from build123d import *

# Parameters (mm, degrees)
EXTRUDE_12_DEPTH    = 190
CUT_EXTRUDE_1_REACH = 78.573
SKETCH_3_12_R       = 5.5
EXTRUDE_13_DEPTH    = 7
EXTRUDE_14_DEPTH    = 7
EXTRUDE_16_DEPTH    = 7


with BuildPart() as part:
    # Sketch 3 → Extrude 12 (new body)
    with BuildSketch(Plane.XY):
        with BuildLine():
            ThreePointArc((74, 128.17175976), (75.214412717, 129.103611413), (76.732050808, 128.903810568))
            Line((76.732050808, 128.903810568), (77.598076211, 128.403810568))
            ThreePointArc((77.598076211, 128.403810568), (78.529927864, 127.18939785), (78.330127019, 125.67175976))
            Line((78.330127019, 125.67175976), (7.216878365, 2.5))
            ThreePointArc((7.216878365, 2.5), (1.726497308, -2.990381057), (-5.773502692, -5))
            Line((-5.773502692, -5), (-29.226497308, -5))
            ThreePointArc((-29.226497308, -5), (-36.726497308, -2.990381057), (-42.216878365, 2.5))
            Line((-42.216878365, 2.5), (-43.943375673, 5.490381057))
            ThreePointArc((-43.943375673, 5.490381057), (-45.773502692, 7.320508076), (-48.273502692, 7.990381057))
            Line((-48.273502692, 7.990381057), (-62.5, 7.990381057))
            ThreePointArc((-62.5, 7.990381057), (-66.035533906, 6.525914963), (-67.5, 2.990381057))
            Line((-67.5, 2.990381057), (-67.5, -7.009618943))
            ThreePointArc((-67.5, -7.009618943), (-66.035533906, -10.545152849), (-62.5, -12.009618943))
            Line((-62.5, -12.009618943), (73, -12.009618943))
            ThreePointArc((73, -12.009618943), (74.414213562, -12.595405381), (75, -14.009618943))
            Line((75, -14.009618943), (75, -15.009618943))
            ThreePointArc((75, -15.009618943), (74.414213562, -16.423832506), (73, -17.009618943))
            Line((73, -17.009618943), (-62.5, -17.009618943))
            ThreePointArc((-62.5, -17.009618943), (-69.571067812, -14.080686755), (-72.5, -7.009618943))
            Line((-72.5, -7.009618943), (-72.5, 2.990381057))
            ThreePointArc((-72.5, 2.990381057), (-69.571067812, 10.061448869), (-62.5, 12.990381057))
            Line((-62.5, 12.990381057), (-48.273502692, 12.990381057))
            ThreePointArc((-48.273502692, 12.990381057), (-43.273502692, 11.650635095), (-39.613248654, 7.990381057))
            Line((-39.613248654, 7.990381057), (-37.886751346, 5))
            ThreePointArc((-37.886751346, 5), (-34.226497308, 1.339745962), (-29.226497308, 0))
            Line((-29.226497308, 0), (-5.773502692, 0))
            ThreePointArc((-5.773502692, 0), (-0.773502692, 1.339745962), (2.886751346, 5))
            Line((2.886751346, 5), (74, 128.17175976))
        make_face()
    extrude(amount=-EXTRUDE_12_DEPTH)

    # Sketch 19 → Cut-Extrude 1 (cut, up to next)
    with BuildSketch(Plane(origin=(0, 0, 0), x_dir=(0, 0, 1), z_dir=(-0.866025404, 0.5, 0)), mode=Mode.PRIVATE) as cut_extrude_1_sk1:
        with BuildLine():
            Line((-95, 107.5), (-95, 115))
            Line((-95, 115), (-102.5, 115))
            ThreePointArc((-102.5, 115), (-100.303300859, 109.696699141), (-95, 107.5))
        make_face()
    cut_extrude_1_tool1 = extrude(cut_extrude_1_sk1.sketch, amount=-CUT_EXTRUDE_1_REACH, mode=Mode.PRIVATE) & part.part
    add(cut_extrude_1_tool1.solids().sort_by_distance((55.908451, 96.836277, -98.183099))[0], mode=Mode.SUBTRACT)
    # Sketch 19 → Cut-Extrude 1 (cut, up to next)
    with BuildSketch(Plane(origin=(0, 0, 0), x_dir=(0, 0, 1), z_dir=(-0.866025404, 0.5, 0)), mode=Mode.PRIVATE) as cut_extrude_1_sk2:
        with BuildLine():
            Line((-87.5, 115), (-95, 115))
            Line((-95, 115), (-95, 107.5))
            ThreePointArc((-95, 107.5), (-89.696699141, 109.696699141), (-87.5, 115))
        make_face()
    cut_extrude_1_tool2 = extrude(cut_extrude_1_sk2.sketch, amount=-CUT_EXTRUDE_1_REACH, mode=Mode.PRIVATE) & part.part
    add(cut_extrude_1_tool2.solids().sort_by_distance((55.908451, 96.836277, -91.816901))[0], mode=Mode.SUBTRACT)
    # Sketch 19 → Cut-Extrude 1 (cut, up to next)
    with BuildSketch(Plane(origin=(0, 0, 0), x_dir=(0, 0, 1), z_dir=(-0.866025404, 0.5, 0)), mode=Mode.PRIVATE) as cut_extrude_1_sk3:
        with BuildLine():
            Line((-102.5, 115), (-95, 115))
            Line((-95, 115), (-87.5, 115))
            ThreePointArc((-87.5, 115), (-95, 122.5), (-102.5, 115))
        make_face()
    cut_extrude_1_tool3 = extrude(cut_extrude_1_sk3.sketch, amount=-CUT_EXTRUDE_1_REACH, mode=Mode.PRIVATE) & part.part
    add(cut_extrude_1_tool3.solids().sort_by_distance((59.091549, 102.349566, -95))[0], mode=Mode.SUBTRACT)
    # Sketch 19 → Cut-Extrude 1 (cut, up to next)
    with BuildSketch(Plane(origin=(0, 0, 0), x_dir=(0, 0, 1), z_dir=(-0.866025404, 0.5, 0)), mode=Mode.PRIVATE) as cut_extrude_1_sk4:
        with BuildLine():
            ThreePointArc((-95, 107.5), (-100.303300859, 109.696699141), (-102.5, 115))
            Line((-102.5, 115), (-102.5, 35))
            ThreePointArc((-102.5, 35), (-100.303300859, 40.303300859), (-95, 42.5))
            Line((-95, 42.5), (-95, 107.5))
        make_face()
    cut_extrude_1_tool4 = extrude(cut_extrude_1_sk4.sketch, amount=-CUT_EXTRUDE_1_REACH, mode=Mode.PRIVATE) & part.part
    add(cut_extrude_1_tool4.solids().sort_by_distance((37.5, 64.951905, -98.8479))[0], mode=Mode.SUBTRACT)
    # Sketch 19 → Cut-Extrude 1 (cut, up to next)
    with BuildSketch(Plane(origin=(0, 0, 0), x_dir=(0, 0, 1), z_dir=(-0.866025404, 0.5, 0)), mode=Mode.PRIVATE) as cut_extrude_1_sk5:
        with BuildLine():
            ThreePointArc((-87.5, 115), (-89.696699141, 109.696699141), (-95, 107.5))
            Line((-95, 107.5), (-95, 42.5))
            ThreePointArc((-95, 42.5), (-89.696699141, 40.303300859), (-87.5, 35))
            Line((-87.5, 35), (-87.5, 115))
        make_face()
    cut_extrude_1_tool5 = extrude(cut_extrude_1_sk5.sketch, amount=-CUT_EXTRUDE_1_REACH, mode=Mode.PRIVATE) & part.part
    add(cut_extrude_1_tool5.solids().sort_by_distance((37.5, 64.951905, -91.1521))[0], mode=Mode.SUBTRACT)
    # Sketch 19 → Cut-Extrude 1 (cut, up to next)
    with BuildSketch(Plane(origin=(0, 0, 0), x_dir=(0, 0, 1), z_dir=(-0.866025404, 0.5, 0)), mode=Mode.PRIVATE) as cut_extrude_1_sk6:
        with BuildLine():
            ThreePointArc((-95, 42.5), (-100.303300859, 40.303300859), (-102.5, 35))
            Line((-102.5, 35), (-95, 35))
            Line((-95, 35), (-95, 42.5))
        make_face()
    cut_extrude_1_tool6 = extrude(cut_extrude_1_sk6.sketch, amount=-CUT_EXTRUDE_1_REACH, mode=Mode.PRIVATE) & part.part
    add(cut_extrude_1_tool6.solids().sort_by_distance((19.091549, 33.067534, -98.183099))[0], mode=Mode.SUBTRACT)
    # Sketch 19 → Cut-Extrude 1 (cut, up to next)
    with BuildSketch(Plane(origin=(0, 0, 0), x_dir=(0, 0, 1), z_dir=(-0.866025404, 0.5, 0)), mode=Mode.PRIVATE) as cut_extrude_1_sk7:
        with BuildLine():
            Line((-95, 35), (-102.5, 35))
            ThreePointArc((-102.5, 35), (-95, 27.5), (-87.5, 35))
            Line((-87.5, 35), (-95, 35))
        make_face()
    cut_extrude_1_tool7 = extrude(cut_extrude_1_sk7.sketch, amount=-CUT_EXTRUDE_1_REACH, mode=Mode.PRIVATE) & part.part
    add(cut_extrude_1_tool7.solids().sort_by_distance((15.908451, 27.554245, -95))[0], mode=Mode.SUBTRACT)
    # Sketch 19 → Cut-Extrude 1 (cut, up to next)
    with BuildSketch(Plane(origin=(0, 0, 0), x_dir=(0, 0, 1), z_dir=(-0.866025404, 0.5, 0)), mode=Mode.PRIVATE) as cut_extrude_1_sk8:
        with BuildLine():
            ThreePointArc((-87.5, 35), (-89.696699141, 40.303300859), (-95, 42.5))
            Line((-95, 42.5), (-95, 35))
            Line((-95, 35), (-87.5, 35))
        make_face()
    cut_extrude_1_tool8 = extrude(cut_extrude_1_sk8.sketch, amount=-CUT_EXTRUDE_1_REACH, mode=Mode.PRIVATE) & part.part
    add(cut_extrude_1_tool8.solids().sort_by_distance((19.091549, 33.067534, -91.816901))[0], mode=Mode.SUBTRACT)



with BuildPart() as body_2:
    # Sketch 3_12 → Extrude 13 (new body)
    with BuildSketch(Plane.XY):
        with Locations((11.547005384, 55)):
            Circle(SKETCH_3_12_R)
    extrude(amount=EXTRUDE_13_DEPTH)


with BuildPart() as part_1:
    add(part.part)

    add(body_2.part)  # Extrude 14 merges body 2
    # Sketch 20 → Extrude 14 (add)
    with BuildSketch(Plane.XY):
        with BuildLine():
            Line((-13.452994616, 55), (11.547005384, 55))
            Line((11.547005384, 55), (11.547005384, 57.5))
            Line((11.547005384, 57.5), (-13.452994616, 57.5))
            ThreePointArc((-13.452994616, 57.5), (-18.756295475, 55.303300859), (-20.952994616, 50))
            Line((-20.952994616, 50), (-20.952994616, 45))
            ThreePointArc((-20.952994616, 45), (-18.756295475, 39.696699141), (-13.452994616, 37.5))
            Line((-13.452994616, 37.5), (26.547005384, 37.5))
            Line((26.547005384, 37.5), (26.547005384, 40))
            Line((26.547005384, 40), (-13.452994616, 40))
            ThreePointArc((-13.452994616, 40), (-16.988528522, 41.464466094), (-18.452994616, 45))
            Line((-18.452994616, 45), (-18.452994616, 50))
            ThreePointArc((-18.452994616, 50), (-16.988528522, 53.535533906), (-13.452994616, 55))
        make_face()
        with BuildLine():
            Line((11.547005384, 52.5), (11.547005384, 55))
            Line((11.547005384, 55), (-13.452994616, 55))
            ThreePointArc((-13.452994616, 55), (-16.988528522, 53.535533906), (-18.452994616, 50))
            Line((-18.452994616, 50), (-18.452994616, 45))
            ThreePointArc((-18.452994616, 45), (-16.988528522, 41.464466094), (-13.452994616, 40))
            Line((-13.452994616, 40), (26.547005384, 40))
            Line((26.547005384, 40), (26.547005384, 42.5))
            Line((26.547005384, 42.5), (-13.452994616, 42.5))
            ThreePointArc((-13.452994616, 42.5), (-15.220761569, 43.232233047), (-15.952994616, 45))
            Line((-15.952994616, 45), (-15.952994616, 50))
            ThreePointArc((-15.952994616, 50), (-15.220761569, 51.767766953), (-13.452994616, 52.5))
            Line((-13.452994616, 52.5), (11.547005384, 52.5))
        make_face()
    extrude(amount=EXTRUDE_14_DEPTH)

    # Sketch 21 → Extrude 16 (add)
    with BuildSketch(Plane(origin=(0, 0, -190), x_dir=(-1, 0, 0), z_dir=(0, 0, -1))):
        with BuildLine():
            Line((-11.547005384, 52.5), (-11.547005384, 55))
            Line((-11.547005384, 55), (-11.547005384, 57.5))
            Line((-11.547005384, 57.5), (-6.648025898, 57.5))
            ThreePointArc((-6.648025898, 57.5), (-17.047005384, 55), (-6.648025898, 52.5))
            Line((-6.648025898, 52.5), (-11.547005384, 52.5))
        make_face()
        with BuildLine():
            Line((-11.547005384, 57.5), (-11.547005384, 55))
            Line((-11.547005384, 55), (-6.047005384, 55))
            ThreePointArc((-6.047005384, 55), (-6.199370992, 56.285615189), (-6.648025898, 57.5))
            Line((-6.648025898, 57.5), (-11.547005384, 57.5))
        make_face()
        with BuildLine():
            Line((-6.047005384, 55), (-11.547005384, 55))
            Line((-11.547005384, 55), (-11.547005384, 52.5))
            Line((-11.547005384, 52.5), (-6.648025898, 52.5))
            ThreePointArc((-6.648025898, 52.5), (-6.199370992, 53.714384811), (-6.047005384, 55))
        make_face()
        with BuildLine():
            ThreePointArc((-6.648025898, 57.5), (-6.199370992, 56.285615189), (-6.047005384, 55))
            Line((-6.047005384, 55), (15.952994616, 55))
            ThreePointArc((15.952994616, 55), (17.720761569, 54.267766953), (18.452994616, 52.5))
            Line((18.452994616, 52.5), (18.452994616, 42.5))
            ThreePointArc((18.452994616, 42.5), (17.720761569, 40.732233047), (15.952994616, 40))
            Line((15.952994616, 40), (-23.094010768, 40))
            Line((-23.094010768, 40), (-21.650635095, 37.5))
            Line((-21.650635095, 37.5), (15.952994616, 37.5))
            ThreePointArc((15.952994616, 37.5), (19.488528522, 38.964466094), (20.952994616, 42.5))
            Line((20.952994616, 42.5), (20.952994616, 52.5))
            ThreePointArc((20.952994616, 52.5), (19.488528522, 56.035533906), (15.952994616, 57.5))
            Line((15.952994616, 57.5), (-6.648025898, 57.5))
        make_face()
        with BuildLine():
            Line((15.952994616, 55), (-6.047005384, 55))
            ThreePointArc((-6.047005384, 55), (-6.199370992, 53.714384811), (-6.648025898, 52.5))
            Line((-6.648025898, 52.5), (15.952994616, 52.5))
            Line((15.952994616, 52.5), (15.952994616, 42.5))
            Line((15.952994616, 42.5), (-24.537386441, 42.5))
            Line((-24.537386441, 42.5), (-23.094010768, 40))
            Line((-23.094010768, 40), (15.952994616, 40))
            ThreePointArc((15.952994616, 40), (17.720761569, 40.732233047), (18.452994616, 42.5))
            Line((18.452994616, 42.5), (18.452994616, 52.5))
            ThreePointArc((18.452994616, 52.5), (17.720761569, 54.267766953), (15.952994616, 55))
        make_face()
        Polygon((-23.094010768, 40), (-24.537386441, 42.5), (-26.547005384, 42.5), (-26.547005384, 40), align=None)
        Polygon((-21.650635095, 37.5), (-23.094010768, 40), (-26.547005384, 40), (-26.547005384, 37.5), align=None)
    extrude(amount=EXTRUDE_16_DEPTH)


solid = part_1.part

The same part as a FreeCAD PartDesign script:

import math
import FreeCAD as App
import Part
import Sketcher
from FreeCAD import Vector
Q = App.Units.Quantity

doc = App.newDocument("Part")
params = doc.addObject("Spreadsheet::Sheet", "Params")
for row, (alias, value) in enumerate([
    ("sketch1_radius", "2 mm"),
    ("sketch1_radius2", "10 mm"),
    ("sketch1_radius3", "5 mm"),
    ("sketch1_height", "10 mm"),
    ("sketch1_width", "135.5 mm"),
    ("pad1_length", "190 mm"),
    ("sketch2_radius", "7.5 mm"),
    ("sketch3_radius", "7.5 mm"),
    ("sketch4_radius", "7.5 mm"),
    ("sketch5_radius", "7.5 mm"),
    ("sketch5_height", "80 mm"),
    ("sketch6_radius", "7.5 mm"),
    ("sketch6_height", "65 mm"),
    ("sketch7_radius", "7.5 mm"),
    ("sketch8_radius", "7.5 mm"),
    ("sketch9_radius", "7.5 mm"),
    ("sketch10_diameter", "11 mm"),
    ("pad2_length", "7 mm"),
    ("sketch11_radius", "7.5 mm"),
    ("sketch11_radius2", "2.5 mm"),
    ("sketch11_width", "25 mm"),
    ("sketch11_width2", "40 mm"),
    ("pad3_length", "7 mm"),
    ("sketch12_radius", "5 mm"),
    ("sketch12_radius2", "5.5 mm"),
    ("sketch12_height", "10 mm"),
    ("sketch12_width", "42.5 mm"),
    ("pad4_length", "7 mm"),
], start=1):
    params.set(f"A{row}", alias)
    params.set(f"B{row}", "=" + value)
    params.setAlias(f"B{row}", alias)

body = doc.addObject("PartDesign::Body", "Body")
body.AllowCompound = True

sketch1 = body.newObject("Sketcher::SketchObject", "Sketch")
sketch1.AttachmentSupport = (doc.getObject("XY_Plane"), [""])
sketch1.MapMode = "FlatFace"
sketch1.addGeometry(Part.ArcOfCircle(Part.Circle(Vector(75.732051, 127.17176, 0), Vector(0, 0, 1), 2), math.radians(60), math.radians(150)), False)
sketch1.addGeometry(Part.LineSegment(Vector(74, 128.17176, 0), Vector(2.886751, 5, 0)), False)
sketch1.addGeometry(Part.ArcOfCircle(Part.Circle(Vector(-5.773503, 10, 0), Vector(0, 0, 1), 10), math.radians(-90), math.radians(-30)), False)
sketch1.addGeometry(Part.LineSegment(Vector(-5.773503, 0, 0), Vector(-29.226497, 0, 0)), False)
sketch1.addGeometry(Part.ArcOfCircle(Part.Circle(Vector(-29.226497, 10, 0), Vector(0, 0, 1), 10), math.radians(-150), math.radians(-90)), False)
sketch1.addGeometry(Part.LineSegment(Vector(-37.886751, 5, 0), Vector(-39.613249, 7.990381, 0)), False)
sketch1.addGeometry(Part.ArcOfCircle(Part.Circle(Vector(-48.273503, 2.990381, 0), Vector(0, 0, 1), 10), math.radians(30), math.radians(90)), False)
sketch1.addGeometry(Part.LineSegment(Vector(-48.273503, 12.990381, 0), Vector(-62.5, 12.990381, 0)), False)
sketch1.addGeometry(Part.ArcOfCircle(Part.Circle(Vector(-62.5, 2.990381, 0), Vector(0, 0, 1), 10), math.radians(90), math.radians(180)), False)
sketch1.addGeometry(Part.LineSegment(Vector(-72.5, 2.990381, 0), Vector(-72.5, -7.009619, 0)), False)
sketch1.addGeometry(Part.ArcOfCircle(Part.Circle(Vector(-62.5, -7.009619, 0), Vector(0, 0, 1), 10), math.radians(180), math.radians(270)), False)
sketch1.addGeometry(Part.LineSegment(Vector(-62.5, -17.009619, 0), Vector(73, -17.009619, 0)), False)
sketch1.addGeometry(Part.ArcOfCircle(Part.Circle(Vector(73, -15.009619, 0), Vector(0, 0, 1), 2), math.radians(-90), math.radians(0)), False)
sketch1.addGeometry(Part.LineSegment(Vector(75, -15.009619, 0), Vector(75, -14.009619, 0)), False)
sketch1.addGeometry(Part.ArcOfCircle(Part.Circle(Vector(73, -14.009619, 0), Vector(0, 0, 1), 2), math.radians(0), math.radians(90)), False)
sketch1.addGeometry(Part.LineSegment(Vector(73, -12.009619, 0), Vector(-62.5, -12.009619, 0)), False)
sketch1.addGeometry(Part.ArcOfCircle(Part.Circle(Vector(-62.5, -7.009619, 0), Vector(0, 0, 1), 5), math.radians(180), math.radians(270)), False)
sketch1.addGeometry(Part.LineSegment(Vector(-67.5, -7.009619, 0), Vector(-67.5, 2.990381, 0)), False)
sketch1.addGeometry(Part.ArcOfCircle(Part.Circle(Vector(-62.5, 2.990381, 0), Vector(0, 0, 1), 5), math.radians(90), math.radians(180)), False)
sketch1.addGeometry(Part.LineSegment(Vector(-62.5, 7.990381, 0), Vector(-48.273503, 7.990381, 0)), False)
sketch1.addGeometry(Part.ArcOfCircle(Part.Circle(Vector(-48.273503, 2.990381, 0), Vector(0, 0, 1), 5), math.radians(30), math.radians(90)), False)
sketch1.addGeometry(Part.LineSegment(Vector(-43.943376, 5.490381, 0), Vector(-42.216878, 2.5, 0)), False)
sketch1.addGeometry(Part.ArcOfCircle(Part.Circle(Vector(-29.226497, 10, 0), Vector(0, 0, 1), 15), math.radians(-150), math.radians(-90)), False)
sketch1.addGeometry(Part.LineSegment(Vector(-29.226497, -5, 0), Vector(-5.773503, -5, 0)), False)
sketch1.addGeometry(Part.ArcOfCircle(Part.Circle(Vector(-5.773503, 10, 0), Vector(0, 0, 1), 15), math.radians(-90), math.radians(-30)), False)
sketch1.addGeometry(Part.LineSegment(Vector(7.216878, 2.5, 0), Vector(78.330127, 125.67176, 0)), False)
sketch1.addGeometry(Part.ArcOfCircle(Part.Circle(Vector(76.598076, 126.67176, 0), Vector(0, 0, 1), 2), math.radians(-30), math.radians(60)), False)
sketch1.addGeometry(Part.LineSegment(Vector(77.598076, 128.403811, 0), Vector(76.732051, 128.903811, 0)), False)
sketch1.addConstraint(Sketcher.Constraint("Tangent", 0, 2, 1, 1))
sketch1.addConstraint(Sketcher.Constraint("Tangent", 1, 2, 2, 2))
sketch1.addConstraint(Sketcher.Constraint("Tangent", 2, 1, 3, 1))
sketch1.addConstraint(Sketcher.Constraint("Tangent", 3, 2, 4, 2))
sketch1.addConstraint(Sketcher.Constraint("Tangent", 4, 1, 5, 1))
sketch1.addConstraint(Sketcher.Constraint("Tangent", 5, 2, 6, 1))
sketch1.addConstraint(Sketcher.Constraint("Tangent", 6, 2, 7, 1))
sketch1.addConstraint(Sketcher.Constraint("Tangent", 7, 2, 8, 1))
sketch1.addConstraint(Sketcher.Constraint("Tangent", 8, 2, 9, 1))
sketch1.addConstraint(Sketcher.Constraint("Tangent", 9, 2, 10, 1))
sketch1.addConstraint(Sketcher.Constraint("Tangent", 10, 2, 11, 1))
sketch1.addConstraint(Sketcher.Constraint("Tangent", 11, 2, 12, 1))
sketch1.addConstraint(Sketcher.Constraint("Tangent", 12, 2, 13, 1))
sketch1.addConstraint(Sketcher.Constraint("Tangent", 13, 2, 14, 1))
sketch1.addConstraint(Sketcher.Constraint("Tangent", 14, 2, 15, 1))
sketch1.addConstraint(Sketcher.Constraint("Tangent", 15, 2, 16, 2))
sketch1.addConstraint(Sketcher.Constraint("Tangent", 16, 1, 17, 1))
sketch1.addConstraint(Sketcher.Constraint("Tangent", 17, 2, 18, 2))
sketch1.addConstraint(Sketcher.Constraint("Tangent", 18, 1, 19, 1))
sketch1.addConstraint(Sketcher.Constraint("Tangent", 19, 2, 20, 2))
sketch1.addConstraint(Sketcher.Constraint("Tangent", 20, 1, 21, 1))
sketch1.addConstraint(Sketcher.Constraint("Tangent", 21, 2, 22, 1))
sketch1.addConstraint(Sketcher.Constraint("Tangent", 22, 2, 23, 1))
sketch1.addConstraint(Sketcher.Constraint("Tangent", 23, 2, 24, 1))
sketch1.addConstraint(Sketcher.Constraint("Tangent", 24, 2, 25, 1))
sketch1.addConstraint(Sketcher.Constraint("Tangent", 25, 2, 26, 1))
sketch1.addConstraint(Sketcher.Constraint("Tangent", 26, 2, 27, 1))
sketch1.addConstraint(Sketcher.Constraint("Tangent", 27, 2, 0, 1))
sketch1.addConstraint(Sketcher.Constraint("Horizontal", 3))
sketch1.addConstraint(Sketcher.Constraint("Horizontal", 7))
sketch1.addConstraint(Sketcher.Constraint("Vertical", 9))
sketch1.addConstraint(Sketcher.Constraint("Horizontal", 11))
sketch1.addConstraint(Sketcher.Constraint("Vertical", 13))
sketch1.addConstraint(Sketcher.Constraint("Horizontal", 15))
sketch1.addConstraint(Sketcher.Constraint("Vertical", 17))
sketch1.addConstraint(Sketcher.Constraint("Horizontal", 19))
sketch1.addConstraint(Sketcher.Constraint("Horizontal", 23))
sketch1.addConstraint(Sketcher.Constraint("Coincident", 16, 3, 10, 3))
sketch1.addConstraint(Sketcher.Constraint("Coincident", 18, 3, 8, 3))
sketch1.addConstraint(Sketcher.Constraint("Coincident", 20, 3, 6, 3))
sketch1.addConstraint(Sketcher.Constraint("Coincident", 22, 3, 4, 3))
sketch1.addConstraint(Sketcher.Constraint("Coincident", 24, 3, 2, 3))
sketch1.addConstraint(Sketcher.Constraint("Equal", 2, 4))
sketch1.addConstraint(Sketcher.Constraint("Equal", 4, 6))
sketch1.addConstraint(Sketcher.Constraint("Equal", 6, 8))
sketch1.addConstraint(Sketcher.Constraint("Equal", 8, 10))
sketch1.addConstraint(Sketcher.Constraint("Equal", 0, 12))
sketch1.addConstraint(Sketcher.Constraint("Equal", 12, 14))
sketch1.addConstraint(Sketcher.Constraint("Equal", 14, 26))
sketch1.addConstraint(Sketcher.Constraint("PointOnObject", 2, 1, -1))
sketch1.addConstraint(Sketcher.Constraint("Parallel", 5, 21))
sketch1.addConstraint(Sketcher.Constraint("Parallel", 1, 25))
sketch1.addConstraint(Sketcher.Constraint("Perpendicular", 25, 27))
sketch1.addConstraint(Sketcher.Constraint("Horizontal", 1, 2, 4, 1))
sketch1.addConstraint(Sketcher.Constraint("Horizontal", 5, 2, 18, 1))
sketch1.addConstraint(Sketcher.Constraint("Radius", 0, Q("2 mm")))
sketch1.addConstraint(Sketcher.Constraint("Radius", 2, Q("10 mm")))
sketch1.addConstraint(Sketcher.Constraint("Radius", 16, Q("5 mm")))
sketch1.addConstraint(Sketcher.Constraint("DistanceY", 9, 2, 9, 1, Q("10 mm")))
sketch1.addConstraint(Sketcher.Constraint("DistanceX", 11, 1, 11, 2, Q("135.5 mm")))
sketch1.addConstraint(Sketcher.Constraint("DistanceX", -1, 1, 12, 3, Q("73 mm")))
sketch1.addConstraint(Sketcher.Constraint("DistanceX", -1, 1, 0, 2, Q("74 mm")))
sketch1.addConstraint(Sketcher.Constraint("DistanceX", 6, 3, 2, 3, Q("42.5 mm")))
sketch1.addConstraint(Sketcher.Constraint("DistanceX", 3, 2, 3, 1, Q("23.452995 mm")))
sketch1.addConstraint(Sketcher.Constraint("DistanceX", 7, 2, 7, 1, Q("14.226497 mm")))
sketch1.setExpression("Constraints[55]", "Params.sketch1_radius")
sketch1.setExpression("Constraints[56]", "Params.sketch1_radius2")
sketch1.setExpression("Constraints[57]", "Params.sketch1_radius3")
sketch1.setExpression("Constraints[58]", "Params.sketch1_height")
sketch1.setExpression("Constraints[59]", "Params.sketch1_width")
pad1 = body.newObject("PartDesign::Pad", "Pad")
pad1.Profile = sketch1
pad1.setExpression("Length", "Params.pad1_length")
pad1.Reversed = True

sketch2 = body.newObject("Sketcher::SketchObject", "Sketch001")
sketch2.Placement = App.Placement(Vector(0, 0, 0), App.Rotation(Vector(0, 0, 1), Vector(0.5, 0.866025404, 0), Vector(-0.866025404, 0.5, 0), "ZXY"))
sketch2.addGeometry(Part.LineSegment(Vector(-95, 107.5, 0), Vector(-95, 115, 0)), False)
sketch2.addGeometry(Part.LineSegment(Vector(-95, 115, 0), Vector(-102.5, 115, 0)), False)
sketch2.addGeometry(Part.ArcOfCircle(Part.Circle(Vector(-95, 115, 0), Vector(0, 0, 1), 7.5), math.radians(180), math.radians(270)), False)
sketch2.addConstraint(Sketcher.Constraint("Coincident", 0, 2, 1, 1))
sketch2.addConstraint(Sketcher.Constraint("Coincident", 1, 2, 2, 1))
sketch2.addConstraint(Sketcher.Constraint("Coincident", 2, 2, 0, 1))
sketch2.addConstraint(Sketcher.Constraint("Vertical", 0))
sketch2.addConstraint(Sketcher.Constraint("Horizontal", 1))
sketch2.addConstraint(Sketcher.Constraint("Coincident", 0, 2, 2, 3))
sketch2.addConstraint(Sketcher.Constraint("Radius", 2, Q("7.5 mm")))
sketch2.addConstraint(Sketcher.Constraint("DistanceX", 2, 3, -1, 1, Q("95 mm")))
sketch2.addConstraint(Sketcher.Constraint("DistanceY", -1, 1, 2, 3, Q("115 mm")))
sketch2.setExpression("Constraints[6]", "Params.sketch2_radius")
pocket1 = body.newObject("PartDesign::Pocket", "Pocket")
pocket1.Profile = sketch2
pocket1.Type = "UpToFirst"

sketch3 = body.newObject("Sketcher::SketchObject", "Sketch002")
sketch3.Placement = App.Placement(Vector(0, 0, 0), App.Rotation(Vector(0, 0, 1), Vector(0.5, 0.866025404, 0), Vector(-0.866025404, 0.5, 0), "ZXY"))
sketch3.addGeometry(Part.LineSegment(Vector(-87.5, 115, 0), Vector(-95, 115, 0)), False)
sketch3.addGeometry(Part.LineSegment(Vector(-95, 115, 0), Vector(-95, 107.5, 0)), False)
sketch3.addGeometry(Part.ArcOfCircle(Part.Circle(Vector(-95, 115, 0), Vector(0, 0, 1), 7.5), math.radians(-90), math.radians(0)), False)
sketch3.addConstraint(Sketcher.Constraint("Coincident", 0, 2, 1, 1))
sketch3.addConstraint(Sketcher.Constraint("Coincident", 1, 2, 2, 1))
sketch3.addConstraint(Sketcher.Constraint("Coincident", 2, 2, 0, 1))
sketch3.addConstraint(Sketcher.Constraint("Horizontal", 0))
sketch3.addConstraint(Sketcher.Constraint("Vertical", 1))
sketch3.addConstraint(Sketcher.Constraint("Coincident", 0, 2, 2, 3))
sketch3.addConstraint(Sketcher.Constraint("Radius", 2, Q("7.5 mm")))
sketch3.addConstraint(Sketcher.Constraint("DistanceX", 2, 3, -1, 1, Q("95 mm")))
sketch3.addConstraint(Sketcher.Constraint("DistanceY", -1, 1, 2, 3, Q("115 mm")))
sketch3.setExpression("Constraints[6]", "Params.sketch3_radius")
pocket2 = body.newObject("PartDesign::Pocket", "Pocket001")
pocket2.Profile = sketch3
pocket2.Type = "UpToFirst"

sketch4 = body.newObject("Sketcher::SketchObject", "Sketch003")
sketch4.Placement = App.Placement(Vector(0, 0, 0), App.Rotation(Vector(0, 0, 1), Vector(0.5, 0.866025404, 0), Vector(-0.866025404, 0.5, 0), "ZXY"))
sketch4.addGeometry(Part.LineSegment(Vector(-102.5, 115, 0), Vector(-87.5, 115, 0)), False)
sketch4.addGeometry(Part.ArcOfCircle(Part.Circle(Vector(-95, 115, 0), Vector(0, 0, 1), 7.5), math.radians(0), math.radians(180)), False)
sketch4.addConstraint(Sketcher.Constraint("Coincident", 0, 1, 1, 2))
sketch4.addConstraint(Sketcher.Constraint("Coincident", 1, 1, 0, 2))
sketch4.addConstraint(Sketcher.Constraint("Horizontal", 0))
sketch4.addConstraint(Sketcher.Constraint("Horizontal", 1, 3, 0, 1))
sketch4.addConstraint(Sketcher.Constraint("Radius", 1, Q("7.5 mm")))
sketch4.addConstraint(Sketcher.Constraint("DistanceX", 1, 3, -1, 1, Q("95 mm")))
sketch4.addConstraint(Sketcher.Constraint("DistanceY", -1, 1, 1, 3, Q("115 mm")))
sketch4.setExpression("Constraints[4]", "Params.sketch4_radius")
pocket3 = body.newObject("PartDesign::Pocket", "Pocket002")
pocket3.Profile = sketch4
pocket3.Type = "UpToFirst"

sketch5 = body.newObject("Sketcher::SketchObject", "Sketch004")
sketch5.Placement = App.Placement(Vector(0, 0, 0), App.Rotation(Vector(0, 0, 1), Vector(0.5, 0.866025404, 0), Vector(-0.866025404, 0.5, 0), "ZXY"))
sketch5.addGeometry(Part.ArcOfCircle(Part.Circle(Vector(-95, 115, 0), Vector(0, 0, 1), 7.5), math.radians(180), math.radians(270)), False)
sketch5.addGeometry(Part.LineSegment(Vector(-102.5, 115, 0), Vector(-102.5, 35, 0)), False)
sketch5.addGeometry(Part.ArcOfCircle(Part.Circle(Vector(-95, 35, 0), Vector(0, 0, 1), 7.5), math.radians(90), math.radians(180)), False)
sketch5.addGeometry(Part.LineSegment(Vector(-95, 42.5, 0), Vector(-95, 107.5, 0)), False)
sketch5.addConstraint(Sketcher.Constraint("Tangent", 0, 1, 1, 1))
sketch5.addConstraint(Sketcher.Constraint("Tangent", 1, 2, 2, 2))
sketch5.addConstraint(Sketcher.Constraint("Coincident", 2, 1, 3, 1))
sketch5.addConstraint(Sketcher.Constraint("Coincident", 3, 2, 0, 2))
sketch5.addConstraint(Sketcher.Constraint("Vertical", 1))
sketch5.addConstraint(Sketcher.Constraint("Vertical", 3))
sketch5.addConstraint(Sketcher.Constraint("Equal", 0, 2))
sketch5.addConstraint(Sketcher.Constraint("Vertical", 0, 3, 2, 1))
sketch5.addConstraint(Sketcher.Constraint("Radius", 0, Q("7.5 mm")))
sketch5.addConstraint(Sketcher.Constraint("DistanceY", 1, 2, 1, 1, Q("80 mm")))
sketch5.addConstraint(Sketcher.Constraint("DistanceX", 0, 3, -1, 1, Q("95 mm")))
sketch5.addConstraint(Sketcher.Constraint("DistanceY", -1, 1, 0, 3, Q("115 mm")))
sketch5.setExpression("Constraints[8]", "Params.sketch5_radius")
sketch5.setExpression("Constraints[9]", "Params.sketch5_height")
pocket4 = body.newObject("PartDesign::Pocket", "Pocket003")
pocket4.Profile = sketch5
pocket4.Type = "UpToFirst"

sketch6 = body.newObject("Sketcher::SketchObject", "Sketch005")
sketch6.Placement = App.Placement(Vector(0, 0, 0), App.Rotation(Vector(0, 0, 1), Vector(0.5, 0.866025404, 0), Vector(-0.866025404, 0.5, 0), "ZXY"))
sketch6.addGeometry(Part.ArcOfCircle(Part.Circle(Vector(-95, 115, 0), Vector(0, 0, 1), 7.5), math.radians(-90), math.radians(0)), False)
sketch6.addGeometry(Part.LineSegment(Vector(-95, 107.5, 0), Vector(-95, 42.5, 0)), False)
sketch6.addGeometry(Part.ArcOfCircle(Part.Circle(Vector(-95, 35, 0), Vector(0, 0, 1), 7.5), math.radians(0), math.radians(90)), False)
sketch6.addGeometry(Part.LineSegment(Vector(-87.5, 35, 0), Vector(-87.5, 115, 0)), False)
sketch6.addConstraint(Sketcher.Constraint("Coincident", 0, 1, 1, 1))
sketch6.addConstraint(Sketcher.Constraint("Coincident", 1, 2, 2, 2))
sketch6.addConstraint(Sketcher.Constraint("Tangent", 2, 1, 3, 1))
sketch6.addConstraint(Sketcher.Constraint("Tangent", 3, 2, 0, 2))
sketch6.addConstraint(Sketcher.Constraint("Vertical", 1))
sketch6.addConstraint(Sketcher.Constraint("Vertical", 3))
sketch6.addConstraint(Sketcher.Constraint("Equal", 0, 2))
sketch6.addConstraint(Sketcher.Constraint("Vertical", 2, 3, 0, 1))
sketch6.addConstraint(Sketcher.Constraint("Radius", 0, Q("7.5 mm")))
sketch6.addConstraint(Sketcher.Constraint("DistanceY", 1, 2, 1, 1, Q("65 mm")))
sketch6.addConstraint(Sketcher.Constraint("DistanceX", 0, 3, -1, 1, Q("95 mm")))
sketch6.addConstraint(Sketcher.Constraint("DistanceY", -1, 1, 0, 3, Q("115 mm")))
sketch6.setExpression("Constraints[8]", "Params.sketch6_radius")
sketch6.setExpression("Constraints[9]", "Params.sketch6_height")
pocket5 = body.newObject("PartDesign::Pocket", "Pocket004")
pocket5.Profile = sketch6
pocket5.Type = "UpToFirst"

sketch7 = body.newObject("Sketcher::SketchObject", "Sketch006")
sketch7.Placement = App.Placement(Vector(0, 0, 0), App.Rotation(Vector(0, 0, 1), Vector(0.5, 0.866025404, 0), Vector(-0.866025404, 0.5, 0), "ZXY"))
sketch7.addGeometry(Part.ArcOfCircle(Part.Circle(Vector(-95, 35, 0), Vector(0, 0, 1), 7.5), math.radians(90), math.radians(180)), False)
sketch7.addGeometry(Part.LineSegment(Vector(-102.5, 35, 0), Vector(-95, 35, 0)), False)
sketch7.addGeometry(Part.LineSegment(Vector(-95, 35, 0), Vector(-95, 42.5, 0)), False)
sketch7.addConstraint(Sketcher.Constraint("Coincident", 0, 2, 1, 1))
sketch7.addConstraint(Sketcher.Constraint("Coincident", 1, 2, 2, 1))
sketch7.addConstraint(Sketcher.Constraint("Coincident", 2, 2, 0, 1))
sketch7.addConstraint(Sketcher.Constraint("Horizontal", 1))
sketch7.addConstraint(Sketcher.Constraint("Vertical", 2))
sketch7.addConstraint(Sketcher.Constraint("Coincident", 1, 2, 0, 3))
sketch7.addConstraint(Sketcher.Constraint("Radius", 0, Q("7.5 mm")))
sketch7.addConstraint(Sketcher.Constraint("DistanceX", 0, 3, -1, 1, Q("95 mm")))
sketch7.addConstraint(Sketcher.Constraint("DistanceY", -1, 1, 0, 3, Q("35 mm")))
sketch7.setExpression("Constraints[6]", "Params.sketch7_radius")
pocket6 = body.newObject("PartDesign::Pocket", "Pocket005")
pocket6.Profile = sketch7
pocket6.Type = "UpToFirst"

sketch8 = body.newObject("Sketcher::SketchObject", "Sketch007")
sketch8.Placement = App.Placement(Vector(0, 0, 0), App.Rotation(Vector(0, 0, 1), Vector(0.5, 0.866025404, 0), Vector(-0.866025404, 0.5, 0), "ZXY"))
sketch8.addGeometry(Part.ArcOfCircle(Part.Circle(Vector(-95, 35, 0), Vector(0, 0, 1), 7.5), math.radians(180), math.radians(360)), False)
sketch8.addGeometry(Part.LineSegment(Vector(-87.5, 35, 0), Vector(-102.5, 35, 0)), False)
sketch8.addConstraint(Sketcher.Constraint("Coincident", 0, 1, 1, 2))
sketch8.addConstraint(Sketcher.Constraint("Coincident", 1, 1, 0, 2))
sketch8.addConstraint(Sketcher.Constraint("Horizontal", 1))
sketch8.addConstraint(Sketcher.Constraint("Radius", 0, Q("7.5 mm")))
sketch8.addConstraint(Sketcher.Constraint("DistanceX", 0, 3, -1, 1, Q("95 mm")))
sketch8.addConstraint(Sketcher.Constraint("DistanceY", -1, 1, 0, 3, Q("35 mm")))
sketch8.addConstraint(Sketcher.Constraint("DistanceY", -1, 1, 0, 1, Q("35 mm")))
sketch8.setExpression("Constraints[3]", "Params.sketch8_radius")
pocket7 = body.newObject("PartDesign::Pocket", "Pocket006")
pocket7.Profile = sketch8
pocket7.Type = "UpToFirst"

sketch9 = body.newObject("Sketcher::SketchObject", "Sketch008")
sketch9.Placement = App.Placement(Vector(0, 0, 0), App.Rotation(Vector(0, 0, 1), Vector(0.5, 0.866025404, 0), Vector(-0.866025404, 0.5, 0), "ZXY"))
sketch9.addGeometry(Part.ArcOfCircle(Part.Circle(Vector(-95, 35, 0), Vector(0, 0, 1), 7.5), math.radians(0), math.radians(90)), False)
sketch9.addGeometry(Part.LineSegment(Vector(-95, 42.5, 0), Vector(-95, 35, 0)), False)
sketch9.addGeometry(Part.LineSegment(Vector(-95, 35, 0), Vector(-87.5, 35, 0)), False)
sketch9.addConstraint(Sketcher.Constraint("Coincident", 0, 2, 1, 1))
sketch9.addConstraint(Sketcher.Constraint("Coincident", 1, 2, 2, 1))
sketch9.addConstraint(Sketcher.Constraint("Coincident", 2, 2, 0, 1))
sketch9.addConstraint(Sketcher.Constraint("Vertical", 1))
sketch9.addConstraint(Sketcher.Constraint("Horizontal", 2))
sketch9.addConstraint(Sketcher.Constraint("Coincident", 1, 2, 0, 3))
sketch9.addConstraint(Sketcher.Constraint("Radius", 0, Q("7.5 mm")))
sketch9.addConstraint(Sketcher.Constraint("DistanceX", 0, 3, -1, 1, Q("95 mm")))
sketch9.addConstraint(Sketcher.Constraint("DistanceY", -1, 1, 0, 3, Q("35 mm")))
sketch9.setExpression("Constraints[6]", "Params.sketch9_radius")
pocket8 = body.newObject("PartDesign::Pocket", "Pocket007")
pocket8.Profile = sketch9
pocket8.Type = "UpToFirst"
body2 = doc.addObject("PartDesign::Body", "Body001")

sketch10 = body2.newObject("Sketcher::SketchObject", "Sketch009")
sketch10.AttachmentSupport = (doc.getObject("XY_Plane001"), [""])
sketch10.MapMode = "FlatFace"
sketch10.addGeometry(Part.Circle(Vector(11.547005, 55, 0), Vector(0, 0, 1), 5.5), False)
sketch10.addConstraint(Sketcher.Constraint("Diameter", 0, Q("11 mm")))
sketch10.addConstraint(Sketcher.Constraint("DistanceY", -1, 1, 0, 3, Q("55 mm")))
sketch10.addConstraint(Sketcher.Constraint("DistanceX", -1, 1, 0, 3, Q("11.547005 mm")))
sketch10.setExpression("Constraints[0]", "Params.sketch10_diameter")
pad2 = body2.newObject("PartDesign::Pad", "Pad001")
pad2.Profile = sketch10
pad2.setExpression("Length", "Params.pad2_length")
body.AllowCompound = True
doc.recompute()

boolean = body.newObject("PartDesign::Boolean", "Boolean")
boolean.Type = "Fuse"
boolean.addObjects([body2])

sketch11 = body.newObject("Sketcher::SketchObject", "Sketch010")
sketch11.AttachmentSupport = (doc.getObject("XY_Plane"), [""])
sketch11.MapMode = "FlatFace"
sketch11.addGeometry(Part.LineSegment(Vector(11.547005, 57.5, 0), Vector(-13.452995, 57.5, 0)), False)
sketch11.addGeometry(Part.ArcOfCircle(Part.Circle(Vector(-13.452995, 50, 0), Vector(0, 0, 1), 7.5), math.radians(90), math.radians(180)), False)
sketch11.addGeometry(Part.LineSegment(Vector(-20.952995, 50, 0), Vector(-20.952995, 45, 0)), False)
sketch11.addGeometry(Part.ArcOfCircle(Part.Circle(Vector(-13.452995, 45, 0), Vector(0, 0, 1), 7.5), math.radians(180), math.radians(270)), False)
sketch11.addGeometry(Part.LineSegment(Vector(-13.452995, 37.5, 0), Vector(26.547005, 37.5, 0)), False)
sketch11.addGeometry(Part.LineSegment(Vector(26.547005, 37.5, 0), Vector(26.547005, 42.5, 0)), False)
sketch11.addGeometry(Part.LineSegment(Vector(26.547005, 42.5, 0), Vector(-13.452995, 42.5, 0)), False)
sketch11.addGeometry(Part.ArcOfCircle(Part.Circle(Vector(-13.452995, 45, 0), Vector(0, 0, 1), 2.5), math.radians(180), math.radians(270)), False)
sketch11.addGeometry(Part.LineSegment(Vector(-15.952995, 45, 0), Vector(-15.952995, 50, 0)), False)
sketch11.addGeometry(Part.ArcOfCircle(Part.Circle(Vector(-13.452995, 50, 0), Vector(0, 0, 1), 2.5), math.radians(90), math.radians(180)), False)
sketch11.addGeometry(Part.LineSegment(Vector(-13.452995, 52.5, 0), Vector(11.547005, 52.5, 0)), False)
sketch11.addGeometry(Part.LineSegment(Vector(11.547005, 52.5, 0), Vector(11.547005, 57.5, 0)), False)
sketch11.addConstraint(Sketcher.Constraint("Tangent", 0, 2, 1, 1))
sketch11.addConstraint(Sketcher.Constraint("Tangent", 1, 2, 2, 1))
sketch11.addConstraint(Sketcher.Constraint("Tangent", 2, 2, 3, 1))
sketch11.addConstraint(Sketcher.Constraint("Tangent", 3, 2, 4, 1))
sketch11.addConstraint(Sketcher.Constraint("Coincident", 4, 2, 5, 1))
sketch11.addConstraint(Sketcher.Constraint("Coincident", 5, 2, 6, 1))
sketch11.addConstraint(Sketcher.Constraint("Tangent", 6, 2, 7, 2))
sketch11.addConstraint(Sketcher.Constraint("Tangent", 7, 1, 8, 1))
sketch11.addConstraint(Sketcher.Constraint("Tangent", 8, 2, 9, 2))
sketch11.addConstraint(Sketcher.Constraint("Tangent", 9, 1, 10, 1))
sketch11.addConstraint(Sketcher.Constraint("Coincident", 10, 2, 11, 1))
sketch11.addConstraint(Sketcher.Constraint("Coincident", 11, 2, 0, 1))
sketch11.addConstraint(Sketcher.Constraint("Horizontal", 0))
sketch11.addConstraint(Sketcher.Constraint("Vertical", 2))
sketch11.addConstraint(Sketcher.Constraint("Horizontal", 4))
sketch11.addConstraint(Sketcher.Constraint("Vertical", 5))
sketch11.addConstraint(Sketcher.Constraint("Horizontal", 6))
sketch11.addConstraint(Sketcher.Constraint("Vertical", 8))
sketch11.addConstraint(Sketcher.Constraint("Horizontal", 10))
sketch11.addConstraint(Sketcher.Constraint("Vertical", 11))
sketch11.addConstraint(Sketcher.Constraint("Coincident", 7, 3, 3, 3))
sketch11.addConstraint(Sketcher.Constraint("Coincident", 9, 3, 1, 3))
sketch11.addConstraint(Sketcher.Constraint("Equal", 1, 3))
sketch11.addConstraint(Sketcher.Constraint("Equal", 2, 5))
sketch11.addConstraint(Sketcher.Constraint("Radius", 1, Q("7.5 mm")))
sketch11.addConstraint(Sketcher.Constraint("Radius", 7, Q("2.5 mm")))
sketch11.addConstraint(Sketcher.Constraint("DistanceX", 0, 2, 0, 1, Q("25 mm")))
sketch11.addConstraint(Sketcher.Constraint("DistanceX", 4, 1, 4, 2, Q("40 mm")))
sketch11.addConstraint(Sketcher.Constraint("DistanceY", -1, 1, 1, 3, Q("50 mm")))
sketch11.addConstraint(Sketcher.Constraint("DistanceX", 1, 3, -1, 1, Q("13.452995 mm")))
sketch11.setExpression("Constraints[24]", "Params.sketch11_radius")
sketch11.setExpression("Constraints[25]", "Params.sketch11_radius2")
sketch11.setExpression("Constraints[26]", "Params.sketch11_width")
sketch11.setExpression("Constraints[27]", "Params.sketch11_width2")
pad3 = body.newObject("PartDesign::Pad", "Pad002")
pad3.Profile = sketch11
pad3.setExpression("Length", "Params.pad3_length")

sketch12 = body.newObject("Sketcher::SketchObject", "Sketch011")
sketch12.AttachmentSupport = (doc.getObject("XY_Plane"), [""])
sketch12.MapMode = "FlatFace"
sketch12.AttachmentOffset = App.Placement(Vector(0, 0, -190), App.Rotation())
sketch12.addGeometry(Part.ArcOfCircle(Part.Circle(Vector(11.547005, 55, 0), Vector(0, 0, 1), 5.5), math.radians(-152.964308), math.radians(152.964308)), False)
sketch12.addGeometry(Part.LineSegment(Vector(6.648026, 52.5, 0), Vector(-15.952995, 52.5, 0)), False)
sketch12.addGeometry(Part.LineSegment(Vector(-15.952995, 52.5, 0), Vector(-15.952995, 42.5, 0)), False)
sketch12.addGeometry(Part.LineSegment(Vector(-15.952995, 42.5, 0), Vector(26.547005, 42.5, 0)), False)
sketch12.addGeometry(Part.LineSegment(Vector(26.547005, 42.5, 0), Vector(26.547005, 37.5, 0)), False)
sketch12.addGeometry(Part.LineSegment(Vector(26.547005, 37.5, 0), Vector(-15.952995, 37.5, 0)), False)
sketch12.addGeometry(Part.ArcOfCircle(Part.Circle(Vector(-15.952995, 42.5, 0), Vector(0, 0, 1), 5), math.radians(180), math.radians(270)), False)
sketch12.addGeometry(Part.LineSegment(Vector(-20.952995, 42.5, 0), Vector(-20.952995, 52.5, 0)), False)
sketch12.addGeometry(Part.ArcOfCircle(Part.Circle(Vector(-15.952995, 52.5, 0), Vector(0, 0, 1), 5), math.radians(90), math.radians(180)), False)
sketch12.addGeometry(Part.LineSegment(Vector(-15.952995, 57.5, 0), Vector(6.648026, 57.5, 0)), False)
sketch12.addConstraint(Sketcher.Constraint("Coincident", 0, 1, 1, 1))
sketch12.addConstraint(Sketcher.Constraint("Coincident", 1, 2, 2, 1))
sketch12.addConstraint(Sketcher.Constraint("Coincident", 2, 2, 3, 1))
sketch12.addConstraint(Sketcher.Constraint("Coincident", 3, 2, 4, 1))
sketch12.addConstraint(Sketcher.Constraint("Coincident", 4, 2, 5, 1))
sketch12.addConstraint(Sketcher.Constraint("Tangent", 5, 2, 6, 2))
sketch12.addConstraint(Sketcher.Constraint("Tangent", 6, 1, 7, 1))
sketch12.addConstraint(Sketcher.Constraint("Tangent", 7, 2, 8, 2))
sketch12.addConstraint(Sketcher.Constraint("Tangent", 8, 1, 9, 1))
sketch12.addConstraint(Sketcher.Constraint("Coincident", 9, 2, 0, 2))
sketch12.addConstraint(Sketcher.Constraint("Horizontal", 1))
sketch12.addConstraint(Sketcher.Constraint("Vertical", 2))
sketch12.addConstraint(Sketcher.Constraint("Horizontal", 3))
sketch12.addConstraint(Sketcher.Constraint("Vertical", 4))
sketch12.addConstraint(Sketcher.Constraint("Horizontal", 5))
sketch12.addConstraint(Sketcher.Constraint("Vertical", 7))
sketch12.addConstraint(Sketcher.Constraint("Horizontal", 9))
sketch12.addConstraint(Sketcher.Constraint("Coincident", 1, 2, 8, 3))
sketch12.addConstraint(Sketcher.Constraint("Coincident", 2, 2, 6, 3))
sketch12.addConstraint(Sketcher.Constraint("Vertical", 0, 1, 9, 2))
sketch12.addConstraint(Sketcher.Constraint("Radius", 6, Q("5 mm")))
sketch12.addConstraint(Sketcher.Constraint("Radius", 0, Q("5.5 mm")))
sketch12.addConstraint(Sketcher.Constraint("DistanceY", 2, 2, 2, 1, Q("10 mm")))
sketch12.addConstraint(Sketcher.Constraint("DistanceX", 3, 1, 3, 2, Q("42.5 mm")))
sketch12.addConstraint(Sketcher.Constraint("DistanceY", -1, 1, 0, 3, Q("55 mm")))
sketch12.addConstraint(Sketcher.Constraint("DistanceX", 0, 3, 3, 2, Q("15 mm")))
sketch12.addConstraint(Sketcher.Constraint("DistanceX", -1, 1, 0, 3, Q("11.547005 mm")))
sketch12.setExpression("Constraints[20]", "Params.sketch12_radius")
sketch12.setExpression("Constraints[21]", "Params.sketch12_radius2")
sketch12.setExpression("Constraints[22]", "Params.sketch12_height")
sketch12.setExpression("Constraints[23]", "Params.sketch12_width")
pad4 = body.newObject("PartDesign::Pad", "Pad003")
pad4.Profile = sketch12
pad4.setExpression("Length", "Params.pad4_length")
pad4.Reversed = True

doc.recompute()
